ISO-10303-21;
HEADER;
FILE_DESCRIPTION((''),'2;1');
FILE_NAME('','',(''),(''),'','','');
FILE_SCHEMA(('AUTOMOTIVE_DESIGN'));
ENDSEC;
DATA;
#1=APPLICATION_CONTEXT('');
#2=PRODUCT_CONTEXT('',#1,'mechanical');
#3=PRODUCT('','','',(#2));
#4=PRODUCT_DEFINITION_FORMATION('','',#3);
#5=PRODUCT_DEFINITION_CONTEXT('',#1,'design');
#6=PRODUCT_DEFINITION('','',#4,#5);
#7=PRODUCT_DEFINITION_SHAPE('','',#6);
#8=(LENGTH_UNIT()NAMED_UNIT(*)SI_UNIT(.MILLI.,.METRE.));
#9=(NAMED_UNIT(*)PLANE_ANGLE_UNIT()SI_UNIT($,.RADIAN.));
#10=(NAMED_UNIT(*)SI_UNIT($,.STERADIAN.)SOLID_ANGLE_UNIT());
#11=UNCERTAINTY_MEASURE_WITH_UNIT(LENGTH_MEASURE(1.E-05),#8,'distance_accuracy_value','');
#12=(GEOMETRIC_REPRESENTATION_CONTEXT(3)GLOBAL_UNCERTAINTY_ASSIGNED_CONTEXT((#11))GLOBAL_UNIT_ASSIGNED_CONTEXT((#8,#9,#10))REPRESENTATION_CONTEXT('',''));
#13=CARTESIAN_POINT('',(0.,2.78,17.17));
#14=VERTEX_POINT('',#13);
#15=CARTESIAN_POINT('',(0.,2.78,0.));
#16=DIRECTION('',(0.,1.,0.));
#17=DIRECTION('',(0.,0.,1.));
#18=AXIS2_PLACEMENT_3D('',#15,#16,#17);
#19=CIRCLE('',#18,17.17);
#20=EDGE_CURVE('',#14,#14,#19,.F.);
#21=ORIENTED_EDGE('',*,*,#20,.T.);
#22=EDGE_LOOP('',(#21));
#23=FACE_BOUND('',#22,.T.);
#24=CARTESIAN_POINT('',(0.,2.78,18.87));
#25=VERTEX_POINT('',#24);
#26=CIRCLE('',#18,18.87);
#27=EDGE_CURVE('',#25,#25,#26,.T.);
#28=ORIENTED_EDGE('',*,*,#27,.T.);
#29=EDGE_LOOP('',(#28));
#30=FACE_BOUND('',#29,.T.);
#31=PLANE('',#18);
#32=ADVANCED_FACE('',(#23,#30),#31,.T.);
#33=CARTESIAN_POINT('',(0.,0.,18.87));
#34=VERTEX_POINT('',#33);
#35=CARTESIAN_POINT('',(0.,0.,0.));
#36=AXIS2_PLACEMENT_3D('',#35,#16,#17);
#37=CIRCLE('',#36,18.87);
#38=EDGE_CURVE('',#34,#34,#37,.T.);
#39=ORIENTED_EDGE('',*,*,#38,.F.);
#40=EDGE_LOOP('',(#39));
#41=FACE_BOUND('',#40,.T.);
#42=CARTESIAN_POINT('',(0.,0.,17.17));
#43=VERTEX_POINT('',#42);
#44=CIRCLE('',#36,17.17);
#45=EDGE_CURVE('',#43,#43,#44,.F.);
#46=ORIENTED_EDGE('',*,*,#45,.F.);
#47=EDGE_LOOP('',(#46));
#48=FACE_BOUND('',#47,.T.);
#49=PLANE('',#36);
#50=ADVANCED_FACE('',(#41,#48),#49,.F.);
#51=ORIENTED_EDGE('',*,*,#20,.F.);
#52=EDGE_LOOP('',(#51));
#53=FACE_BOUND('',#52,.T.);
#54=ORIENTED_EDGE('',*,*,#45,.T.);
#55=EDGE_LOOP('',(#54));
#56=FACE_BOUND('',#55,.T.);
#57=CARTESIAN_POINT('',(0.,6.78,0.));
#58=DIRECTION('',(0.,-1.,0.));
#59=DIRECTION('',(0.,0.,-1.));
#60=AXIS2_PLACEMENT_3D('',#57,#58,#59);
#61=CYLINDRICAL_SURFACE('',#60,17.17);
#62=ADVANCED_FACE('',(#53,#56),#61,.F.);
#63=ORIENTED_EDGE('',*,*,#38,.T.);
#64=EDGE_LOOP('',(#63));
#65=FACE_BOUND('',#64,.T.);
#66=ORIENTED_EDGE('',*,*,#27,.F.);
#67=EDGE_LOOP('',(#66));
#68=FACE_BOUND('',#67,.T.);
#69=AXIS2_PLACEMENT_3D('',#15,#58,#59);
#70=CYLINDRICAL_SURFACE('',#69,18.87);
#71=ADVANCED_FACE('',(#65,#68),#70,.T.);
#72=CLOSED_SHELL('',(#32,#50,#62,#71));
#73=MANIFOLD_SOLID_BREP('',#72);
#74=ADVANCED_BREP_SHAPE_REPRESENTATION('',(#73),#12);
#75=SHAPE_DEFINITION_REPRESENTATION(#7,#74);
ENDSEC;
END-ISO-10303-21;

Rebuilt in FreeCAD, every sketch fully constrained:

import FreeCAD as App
import Part
import Sketcher

doc = App.newDocument("Part")
body = doc.addObject("PartDesign::Body", "Body")

sketch1 = doc.addObject("Sketcher::SketchObject", "Sketch")
body.addObject(sketch1)
sketch1.AttachmentSupport = (doc.XZ_Plane, [""])
sketch1.MapMode = "FlatFace"
sketch1.addGeometry(Part.Circle(App.Vector(0, 0, 0), App.Vector(0, 0, 1), 19), False)
sketch1.addConstraint([
    Sketcher.Constraint("Coincident", 0, 3, -1, 1),
    Sketcher.Constraint("Diameter", 0, 37.74),
])
pad1 = doc.addObject("PartDesign::Pad", "Pad")
body.addObject(pad1)
pad1.Profile = sketch1
pad1.Length = 2.78
pad1.Reversed = True

sketch2 = doc.addObject("Sketcher::SketchObject", "Sketch001")
body.addObject(sketch2)
sketch2.AttachmentSupport = (doc.XZ_Plane, [""])
sketch2.MapMode = "FlatFace"
sketch2.AttachmentOffset = App.Placement(App.Vector(0, 0, -2.78), App.Rotation())
sketch2.addGeometry(Part.Circle(App.Vector(0, 0, 0), App.Vector(0, 0, 1), 17), False)
sketch2.addConstraint([
    Sketcher.Constraint("Coincident", 0, 3, -1, 1),
    Sketcher.Constraint("Diameter", 0, 34.34),
])
pocket1 = doc.addObject("PartDesign::Pocket", "Pocket")
body.addObject(pocket1)
pocket1.Profile = sketch2
pocket1.Type = "ThroughAll"
pocket1.Midplane = True

doc.recompute()
